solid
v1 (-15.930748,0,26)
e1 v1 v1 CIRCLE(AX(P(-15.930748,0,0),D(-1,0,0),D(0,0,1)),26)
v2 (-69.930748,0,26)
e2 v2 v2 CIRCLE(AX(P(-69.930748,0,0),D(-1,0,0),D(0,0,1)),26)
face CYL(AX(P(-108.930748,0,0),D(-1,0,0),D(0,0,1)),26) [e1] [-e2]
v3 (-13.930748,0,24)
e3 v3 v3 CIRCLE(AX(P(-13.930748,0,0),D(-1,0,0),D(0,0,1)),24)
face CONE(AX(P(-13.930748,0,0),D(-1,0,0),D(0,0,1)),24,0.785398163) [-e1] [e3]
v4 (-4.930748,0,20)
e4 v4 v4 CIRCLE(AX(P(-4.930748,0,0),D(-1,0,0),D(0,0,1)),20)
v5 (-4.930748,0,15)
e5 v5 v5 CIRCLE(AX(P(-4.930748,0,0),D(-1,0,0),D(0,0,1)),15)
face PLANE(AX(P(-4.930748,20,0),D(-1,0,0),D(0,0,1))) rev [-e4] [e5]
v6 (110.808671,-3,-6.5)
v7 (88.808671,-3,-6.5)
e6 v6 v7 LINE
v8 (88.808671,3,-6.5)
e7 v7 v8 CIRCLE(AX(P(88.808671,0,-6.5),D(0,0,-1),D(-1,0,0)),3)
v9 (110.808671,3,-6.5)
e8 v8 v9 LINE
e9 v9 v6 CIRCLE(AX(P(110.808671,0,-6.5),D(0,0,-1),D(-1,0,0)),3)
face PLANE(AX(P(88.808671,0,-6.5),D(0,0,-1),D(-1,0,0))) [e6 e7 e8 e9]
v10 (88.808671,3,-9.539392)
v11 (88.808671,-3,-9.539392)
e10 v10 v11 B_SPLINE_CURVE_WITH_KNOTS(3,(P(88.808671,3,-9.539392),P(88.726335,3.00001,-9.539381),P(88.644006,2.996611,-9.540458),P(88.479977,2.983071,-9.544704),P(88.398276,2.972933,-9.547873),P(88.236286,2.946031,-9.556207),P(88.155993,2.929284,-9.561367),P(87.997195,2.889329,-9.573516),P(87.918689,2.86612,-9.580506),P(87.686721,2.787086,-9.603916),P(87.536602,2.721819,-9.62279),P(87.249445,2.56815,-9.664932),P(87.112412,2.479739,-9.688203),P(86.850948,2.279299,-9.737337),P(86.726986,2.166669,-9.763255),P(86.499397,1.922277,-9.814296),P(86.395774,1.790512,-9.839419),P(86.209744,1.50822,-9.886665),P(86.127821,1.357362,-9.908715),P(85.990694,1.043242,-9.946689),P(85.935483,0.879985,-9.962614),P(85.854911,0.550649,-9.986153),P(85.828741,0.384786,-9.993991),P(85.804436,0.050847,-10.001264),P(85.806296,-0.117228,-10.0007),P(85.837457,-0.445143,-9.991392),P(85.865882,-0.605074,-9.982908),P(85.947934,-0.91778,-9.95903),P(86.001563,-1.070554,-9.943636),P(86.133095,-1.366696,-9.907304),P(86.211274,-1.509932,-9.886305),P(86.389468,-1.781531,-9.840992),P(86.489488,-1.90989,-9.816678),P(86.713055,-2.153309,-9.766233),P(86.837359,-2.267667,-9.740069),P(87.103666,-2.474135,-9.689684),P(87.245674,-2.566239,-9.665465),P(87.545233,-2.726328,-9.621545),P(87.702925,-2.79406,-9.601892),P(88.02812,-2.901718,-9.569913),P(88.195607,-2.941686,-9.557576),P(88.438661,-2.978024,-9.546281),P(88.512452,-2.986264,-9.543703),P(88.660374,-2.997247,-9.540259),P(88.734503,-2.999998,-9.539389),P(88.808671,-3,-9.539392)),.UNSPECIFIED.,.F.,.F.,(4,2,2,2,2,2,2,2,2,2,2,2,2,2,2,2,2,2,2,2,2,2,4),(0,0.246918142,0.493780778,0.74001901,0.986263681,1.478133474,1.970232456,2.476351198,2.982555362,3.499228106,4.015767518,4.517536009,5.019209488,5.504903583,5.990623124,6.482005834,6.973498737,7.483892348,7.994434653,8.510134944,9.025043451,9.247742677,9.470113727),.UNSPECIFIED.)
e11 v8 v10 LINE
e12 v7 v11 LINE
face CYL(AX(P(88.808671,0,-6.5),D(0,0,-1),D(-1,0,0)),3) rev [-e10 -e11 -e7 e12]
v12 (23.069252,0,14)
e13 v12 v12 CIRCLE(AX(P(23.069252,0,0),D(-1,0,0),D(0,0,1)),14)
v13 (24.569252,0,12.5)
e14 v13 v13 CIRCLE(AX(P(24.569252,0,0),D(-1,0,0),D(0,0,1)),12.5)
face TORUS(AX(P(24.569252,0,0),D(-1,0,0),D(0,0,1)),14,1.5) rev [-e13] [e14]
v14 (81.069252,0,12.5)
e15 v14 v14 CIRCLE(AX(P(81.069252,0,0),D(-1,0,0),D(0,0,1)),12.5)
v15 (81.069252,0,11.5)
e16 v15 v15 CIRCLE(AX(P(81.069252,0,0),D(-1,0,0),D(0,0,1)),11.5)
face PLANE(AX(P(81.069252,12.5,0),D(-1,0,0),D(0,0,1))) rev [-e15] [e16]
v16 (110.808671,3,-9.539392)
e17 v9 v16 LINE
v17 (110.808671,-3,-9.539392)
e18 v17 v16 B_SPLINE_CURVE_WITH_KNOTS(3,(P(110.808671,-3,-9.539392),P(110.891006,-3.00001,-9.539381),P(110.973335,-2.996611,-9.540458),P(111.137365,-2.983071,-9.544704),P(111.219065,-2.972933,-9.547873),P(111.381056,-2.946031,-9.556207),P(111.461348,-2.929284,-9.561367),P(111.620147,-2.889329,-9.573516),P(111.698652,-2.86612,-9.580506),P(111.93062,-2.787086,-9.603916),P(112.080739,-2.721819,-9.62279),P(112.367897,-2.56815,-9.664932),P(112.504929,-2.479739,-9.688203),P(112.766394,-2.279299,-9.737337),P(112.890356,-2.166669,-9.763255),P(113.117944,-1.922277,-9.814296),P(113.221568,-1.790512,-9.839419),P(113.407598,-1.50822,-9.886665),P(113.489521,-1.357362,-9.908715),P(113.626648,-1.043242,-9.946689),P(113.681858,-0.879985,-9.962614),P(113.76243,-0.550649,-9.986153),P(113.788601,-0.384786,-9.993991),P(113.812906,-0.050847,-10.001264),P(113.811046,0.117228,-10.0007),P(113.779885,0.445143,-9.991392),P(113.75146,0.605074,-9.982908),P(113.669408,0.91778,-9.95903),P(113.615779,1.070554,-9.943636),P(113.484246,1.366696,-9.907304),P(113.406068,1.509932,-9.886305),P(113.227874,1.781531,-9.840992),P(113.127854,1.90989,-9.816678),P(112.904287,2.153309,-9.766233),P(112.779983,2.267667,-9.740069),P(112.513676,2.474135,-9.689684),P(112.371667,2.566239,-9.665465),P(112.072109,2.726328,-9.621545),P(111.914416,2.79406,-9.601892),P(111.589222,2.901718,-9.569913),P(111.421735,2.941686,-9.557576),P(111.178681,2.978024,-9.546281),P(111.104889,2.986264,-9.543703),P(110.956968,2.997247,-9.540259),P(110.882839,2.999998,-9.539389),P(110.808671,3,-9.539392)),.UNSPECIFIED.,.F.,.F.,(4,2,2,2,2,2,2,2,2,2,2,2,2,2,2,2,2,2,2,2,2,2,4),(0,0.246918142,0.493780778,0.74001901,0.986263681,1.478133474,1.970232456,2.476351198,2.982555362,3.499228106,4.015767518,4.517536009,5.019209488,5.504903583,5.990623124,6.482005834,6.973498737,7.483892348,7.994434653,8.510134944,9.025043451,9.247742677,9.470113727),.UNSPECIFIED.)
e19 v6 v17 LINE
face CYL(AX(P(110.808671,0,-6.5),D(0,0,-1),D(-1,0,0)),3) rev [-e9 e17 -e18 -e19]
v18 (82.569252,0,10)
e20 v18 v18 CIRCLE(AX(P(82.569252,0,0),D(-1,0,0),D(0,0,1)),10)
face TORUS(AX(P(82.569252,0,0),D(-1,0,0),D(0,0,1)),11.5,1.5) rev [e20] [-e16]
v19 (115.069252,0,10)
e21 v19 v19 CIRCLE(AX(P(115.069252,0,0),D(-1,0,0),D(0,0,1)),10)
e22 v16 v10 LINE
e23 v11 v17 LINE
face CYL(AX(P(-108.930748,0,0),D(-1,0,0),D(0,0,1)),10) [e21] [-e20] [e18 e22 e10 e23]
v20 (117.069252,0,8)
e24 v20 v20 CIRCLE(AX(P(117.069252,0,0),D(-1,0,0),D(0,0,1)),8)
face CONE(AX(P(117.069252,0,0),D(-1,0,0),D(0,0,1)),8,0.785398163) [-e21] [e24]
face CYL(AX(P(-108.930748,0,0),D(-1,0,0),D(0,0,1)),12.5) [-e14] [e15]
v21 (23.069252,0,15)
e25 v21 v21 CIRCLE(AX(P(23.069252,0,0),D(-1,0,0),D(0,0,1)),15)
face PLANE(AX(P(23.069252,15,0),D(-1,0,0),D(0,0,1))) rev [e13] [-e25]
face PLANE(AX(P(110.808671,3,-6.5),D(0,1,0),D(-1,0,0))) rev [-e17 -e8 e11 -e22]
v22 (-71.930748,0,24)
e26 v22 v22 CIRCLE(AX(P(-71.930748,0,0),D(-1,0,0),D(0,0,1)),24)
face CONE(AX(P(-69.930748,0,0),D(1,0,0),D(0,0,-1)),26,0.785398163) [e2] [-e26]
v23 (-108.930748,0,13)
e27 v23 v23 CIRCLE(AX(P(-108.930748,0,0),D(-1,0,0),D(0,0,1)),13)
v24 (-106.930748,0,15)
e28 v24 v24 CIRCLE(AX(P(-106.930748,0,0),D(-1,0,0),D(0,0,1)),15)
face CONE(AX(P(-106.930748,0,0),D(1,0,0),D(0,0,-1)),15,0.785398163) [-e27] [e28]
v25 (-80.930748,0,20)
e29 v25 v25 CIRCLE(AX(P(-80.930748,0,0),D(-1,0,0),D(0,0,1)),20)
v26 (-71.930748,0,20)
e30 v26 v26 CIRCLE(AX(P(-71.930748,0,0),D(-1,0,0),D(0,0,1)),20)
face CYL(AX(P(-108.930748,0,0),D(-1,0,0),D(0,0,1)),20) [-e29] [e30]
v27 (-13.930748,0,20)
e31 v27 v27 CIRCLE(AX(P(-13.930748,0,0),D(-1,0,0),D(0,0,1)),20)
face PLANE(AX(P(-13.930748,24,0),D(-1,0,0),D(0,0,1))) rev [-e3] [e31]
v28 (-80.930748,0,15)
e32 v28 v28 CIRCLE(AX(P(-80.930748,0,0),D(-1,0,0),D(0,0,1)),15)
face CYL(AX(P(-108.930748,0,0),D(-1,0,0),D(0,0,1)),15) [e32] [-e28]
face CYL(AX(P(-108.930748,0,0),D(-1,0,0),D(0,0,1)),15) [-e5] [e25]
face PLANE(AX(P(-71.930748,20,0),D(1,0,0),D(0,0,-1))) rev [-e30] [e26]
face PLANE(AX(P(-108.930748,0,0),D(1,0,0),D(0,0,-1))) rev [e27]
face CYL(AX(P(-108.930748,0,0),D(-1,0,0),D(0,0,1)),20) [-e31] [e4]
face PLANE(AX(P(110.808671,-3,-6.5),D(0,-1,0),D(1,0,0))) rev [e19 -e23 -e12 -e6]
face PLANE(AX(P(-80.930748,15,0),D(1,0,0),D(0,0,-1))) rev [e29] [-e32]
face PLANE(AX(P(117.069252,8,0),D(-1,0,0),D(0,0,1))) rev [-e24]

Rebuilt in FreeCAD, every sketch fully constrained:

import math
import FreeCAD as App
import Part
import Sketcher

V = App.Vector

doc = App.newDocument("Part")
body = doc.addObject("PartDesign::Body", "Body")

# Sketch on XY plane
sketch1 = body.newObject("Sketcher::SketchObject", "Sketch")
sketch1.AttachmentSupport = (doc.getObject("XY_Plane"), [""])
sketch1.MapMode = "FlatFace"
sketch1.addGeometry([
    Part.LineSegment(V(-108.930748, 13, 0), V(-108.930748, 0, 0)),  # 0
    Part.LineSegment(V(-108.930748, 0, 0), V(117.069252, 0, 0)),  # 1
    Part.LineSegment(V(117.069252, 0, 0), V(117.069252, 8, 0)),  # 2
    Part.LineSegment(V(117.069252, 8, 0), V(115.069252, 10, 0)),  # 3
    Part.LineSegment(V(115.069252, 10, 0), V(82.569252, 10, 0)),  # 4
    Part.ArcOfCircle(Part.Circle(V(82.569252, 11.5, 0), V(0, 0, 1), 1.5), math.radians(180), math.radians(270)),  # 5
    Part.LineSegment(V(81.069252, 11.5, 0), V(81.069252, 12.5, 0)),  # 6
    Part.LineSegment(V(81.069252, 12.5, 0), V(24.569252, 12.5, 0)),  # 7
    Part.ArcOfCircle(Part.Circle(V(24.569252, 14, 0), V(0, 0, 1), 1.5), math.radians(180), math.radians(270)),  # 8
    Part.LineSegment(V(23.069252, 14, 0), V(23.069252, 15, 0)),  # 9
    Part.LineSegment(V(23.069252, 15, 0), V(-4.930748, 15, 0)),  # 10
    Part.LineSegment(V(-4.930748, 15, 0), V(-4.930748, 20, 0)),  # 11
    Part.LineSegment(V(-4.930748, 20, 0), V(-13.930748, 20, 0)),  # 12
    Part.LineSegment(V(-13.930748, 20, 0), V(-13.930748, 24, 0)),  # 13
    Part.LineSegment(V(-13.930748, 24, 0), V(-15.930748, 26, 0)),  # 14
    Part.LineSegment(V(-15.930748, 26, 0), V(-69.930748, 26, 0)),  # 15
    Part.LineSegment(V(-69.930748, 26, 0), V(-71.930748, 24, 0)),  # 16
    Part.LineSegment(V(-71.930748, 24, 0), V(-71.930748, 20, 0)),  # 17
    Part.LineSegment(V(-71.930748, 20, 0), V(-80.930748, 20, 0)),  # 18
    Part.LineSegment(V(-80.930748, 20, 0), V(-80.930748, 15, 0)),  # 19
    Part.LineSegment(V(-80.930748, 15, 0), V(-106.930748, 15, 0)),  # 20
    Part.LineSegment(V(-106.930748, 15, 0), V(-108.930748, 13, 0)),  # 21
], False)
sketch1.addConstraint([
    Sketcher.Constraint("Coincident", 0, 2, 1, 1),
    Sketcher.Constraint("Coincident", 1, 2, 2, 1),
    Sketcher.Constraint("Coincident", 2, 2, 3, 1),
    Sketcher.Constraint("Coincident", 3, 2, 4, 1),
    Sketcher.Constraint("Tangent", 4, 2, 5, 2),
    Sketcher.Constraint("Tangent", 5, 1, 6, 1),
    Sketcher.Constraint("Coincident", 6, 2, 7, 1),
    Sketcher.Constraint("Tangent", 7, 2, 8, 2),
    Sketcher.Constraint("Tangent", 8, 1, 9, 1),
    Sketcher.Constraint("Coincident", 9, 2, 10, 1),
    Sketcher.Constraint("Coincident", 10, 2, 11, 1),
    Sketcher.Constraint("Coincident", 11, 2, 12, 1),
    Sketcher.Constraint("Coincident", 12, 2, 13, 1),
    Sketcher.Constraint("Coincident", 13, 2, 14, 1),
    Sketcher.Constraint("Coincident", 14, 2, 15, 1),
    Sketcher.Constraint("Coincident", 15, 2, 16, 1),
    Sketcher.Constraint("Coincident", 16, 2, 17, 1),
    Sketcher.Constraint("Coincident", 17, 2, 18, 1),
    Sketcher.Constraint("Coincident", 18, 2, 19, 1),
    Sketcher.Constraint("Coincident", 19, 2, 20, 1),
    Sketcher.Constraint("Coincident", 20, 2, 21, 1),
    Sketcher.Constraint("Coincident", 21, 2, 0, 1),
    Sketcher.Constraint("Vertical", 0),
    Sketcher.Constraint("Horizontal", 1),
    Sketcher.Constraint("Vertical", 2),
    Sketcher.Constraint("Horizontal", 4),
    Sketcher.Constraint("Vertical", 6),
    Sketcher.Constraint("Horizontal", 7),
    Sketcher.Constraint("Vertical", 9),
    Sketcher.Constraint("Horizontal", 10),
    Sketcher.Constraint("Vertical", 11),
    Sketcher.Constraint("Horizontal", 12),
    Sketcher.Constraint("Vertical", 13),
    Sketcher.Constraint("Horizontal", 15),
    Sketcher.Constraint("Vertical", 17),
    Sketcher.Constraint("Horizontal", 18),
    Sketcher.Constraint("Vertical", 19),
    Sketcher.Constraint("Horizontal", 20),
    Sketcher.Constraint("Equal", 5, 8),
    Sketcher.Constraint("PointOnObject", 0, 2, -1),
    Sketcher.Constraint("Parallel", 3, 14),
    Sketcher.Constraint("Perpendicular", 14, 16),
    Sketcher.Constraint("Parallel", 16, 21),
    Sketcher.Constraint("Horizontal", 13, 2, 16, 2),
    Sketcher.Constraint("Horizontal", 12, 2, 17, 2),
    Sketcher.Constraint("Horizontal", 10, 2, 19, 2),
    Sketcher.Constraint("Equal", 12, 18),
    Sketcher.Constraint("Equal", 6, 9),
    Sketcher.Constraint("Equal", 3, 14),
    Sketcher.Constraint("Equal", 14, 16),
    Sketcher.Constraint("Equal", 16, 21),
    Sketcher.Constraint("Radius", 5, 1.5),
    Sketcher.Constraint("DistanceX", 1, 1, 1, 2, 226.0),
    Sketcher.Constraint("DistanceX", 10, 2, 10, 1, 28.0),
    Sketcher.Constraint("DistanceX", 12, 2, 12, 1, 9.0),
    Sketcher.Constraint("DistanceX", 15, 2, 15, 1, 54.0),
    Sketcher.Constraint("DistanceX", 20, 2, 20, 1, 26.0),
    Sketcher.Constraint("DistanceY", 0, 2, 0, 1, 13.0),
    Sketcher.Constraint("DistanceY", 2, 1, 2, 2, 8.0),
    Sketcher.Constraint("DistanceY", 11, 1, 11, 2, 5.0),
    Sketcher.Constraint("DistanceY", 13, 1, 13, 2, 4.0),
    Sketcher.Constraint("DistanceX", 4, 2, 4, 1, 32.5),
    Sketcher.Constraint("DistanceX", 7, 2, 7, 1, 56.5),
    Sketcher.Constraint("DistanceX", -1, 1, 5, 3, 82.569252),
])
revolution = body.newObject("PartDesign::Revolution", "Revolution")
revolution.Profile = sketch1
revolution.ReferenceAxis = (sketch1, ["H_Axis"])
revolution.Angle = 360

# Sketch on XY plane
sketch2 = body.newObject("Sketcher::SketchObject", "Sketch001")
sketch2.AttachmentSupport = (doc.getObject("XY_Plane"), [""])
sketch2.MapMode = "FlatFace"
sketch2.AttachmentOffset = App.Placement(V(0, 0, -10), App.Rotation())
sketch2.addGeometry([
    Part.LineSegment(V(88.808671, 3, 0), V(110.808671, 3, 0)),
    Part.ArcOfCircle(Part.Circle(V(110.808671, 0, 0), V(0, 0, 1), 3), math.radians(-90), math.radians(90)),
    Part.LineSegment(V(110.808671, -3, 0), V(88.808671, -3, 0)),
    Part.ArcOfCircle(Part.Circle(V(88.808671, 0, 0), V(0, 0, 1), 3), math.radians(90), math.radians(270)),
], False)
sketch2.addConstraint([
    Sketcher.Constraint("Tangent", 0, 2, 1, 2),
    Sketcher.Constraint("Tangent", 1, 1, 2, 1),
    Sketcher.Constraint("Tangent", 2, 2, 3, 2),
    Sketcher.Constraint("Tangent", 3, 1, 0, 1),
    Sketcher.Constraint("Horizontal", 0),
    Sketcher.Constraint("Horizontal", 2),
    Sketcher.Constraint("PointOnObject", 1, 3, -1),
    Sketcher.Constraint("Radius", 1, 3.0),
    Sketcher.Constraint("DistanceX", 0, 1, 0, 2, 22.0),
    Sketcher.Constraint("DistanceX", -1, 1, 1, 3, 110.808671),
])
pocket1 = body.newObject("PartDesign::Pocket", "Pocket")
pocket1.Profile = sketch2
pocket1.Length = 3.5
pocket1.Reversed = True

doc.recompute()
